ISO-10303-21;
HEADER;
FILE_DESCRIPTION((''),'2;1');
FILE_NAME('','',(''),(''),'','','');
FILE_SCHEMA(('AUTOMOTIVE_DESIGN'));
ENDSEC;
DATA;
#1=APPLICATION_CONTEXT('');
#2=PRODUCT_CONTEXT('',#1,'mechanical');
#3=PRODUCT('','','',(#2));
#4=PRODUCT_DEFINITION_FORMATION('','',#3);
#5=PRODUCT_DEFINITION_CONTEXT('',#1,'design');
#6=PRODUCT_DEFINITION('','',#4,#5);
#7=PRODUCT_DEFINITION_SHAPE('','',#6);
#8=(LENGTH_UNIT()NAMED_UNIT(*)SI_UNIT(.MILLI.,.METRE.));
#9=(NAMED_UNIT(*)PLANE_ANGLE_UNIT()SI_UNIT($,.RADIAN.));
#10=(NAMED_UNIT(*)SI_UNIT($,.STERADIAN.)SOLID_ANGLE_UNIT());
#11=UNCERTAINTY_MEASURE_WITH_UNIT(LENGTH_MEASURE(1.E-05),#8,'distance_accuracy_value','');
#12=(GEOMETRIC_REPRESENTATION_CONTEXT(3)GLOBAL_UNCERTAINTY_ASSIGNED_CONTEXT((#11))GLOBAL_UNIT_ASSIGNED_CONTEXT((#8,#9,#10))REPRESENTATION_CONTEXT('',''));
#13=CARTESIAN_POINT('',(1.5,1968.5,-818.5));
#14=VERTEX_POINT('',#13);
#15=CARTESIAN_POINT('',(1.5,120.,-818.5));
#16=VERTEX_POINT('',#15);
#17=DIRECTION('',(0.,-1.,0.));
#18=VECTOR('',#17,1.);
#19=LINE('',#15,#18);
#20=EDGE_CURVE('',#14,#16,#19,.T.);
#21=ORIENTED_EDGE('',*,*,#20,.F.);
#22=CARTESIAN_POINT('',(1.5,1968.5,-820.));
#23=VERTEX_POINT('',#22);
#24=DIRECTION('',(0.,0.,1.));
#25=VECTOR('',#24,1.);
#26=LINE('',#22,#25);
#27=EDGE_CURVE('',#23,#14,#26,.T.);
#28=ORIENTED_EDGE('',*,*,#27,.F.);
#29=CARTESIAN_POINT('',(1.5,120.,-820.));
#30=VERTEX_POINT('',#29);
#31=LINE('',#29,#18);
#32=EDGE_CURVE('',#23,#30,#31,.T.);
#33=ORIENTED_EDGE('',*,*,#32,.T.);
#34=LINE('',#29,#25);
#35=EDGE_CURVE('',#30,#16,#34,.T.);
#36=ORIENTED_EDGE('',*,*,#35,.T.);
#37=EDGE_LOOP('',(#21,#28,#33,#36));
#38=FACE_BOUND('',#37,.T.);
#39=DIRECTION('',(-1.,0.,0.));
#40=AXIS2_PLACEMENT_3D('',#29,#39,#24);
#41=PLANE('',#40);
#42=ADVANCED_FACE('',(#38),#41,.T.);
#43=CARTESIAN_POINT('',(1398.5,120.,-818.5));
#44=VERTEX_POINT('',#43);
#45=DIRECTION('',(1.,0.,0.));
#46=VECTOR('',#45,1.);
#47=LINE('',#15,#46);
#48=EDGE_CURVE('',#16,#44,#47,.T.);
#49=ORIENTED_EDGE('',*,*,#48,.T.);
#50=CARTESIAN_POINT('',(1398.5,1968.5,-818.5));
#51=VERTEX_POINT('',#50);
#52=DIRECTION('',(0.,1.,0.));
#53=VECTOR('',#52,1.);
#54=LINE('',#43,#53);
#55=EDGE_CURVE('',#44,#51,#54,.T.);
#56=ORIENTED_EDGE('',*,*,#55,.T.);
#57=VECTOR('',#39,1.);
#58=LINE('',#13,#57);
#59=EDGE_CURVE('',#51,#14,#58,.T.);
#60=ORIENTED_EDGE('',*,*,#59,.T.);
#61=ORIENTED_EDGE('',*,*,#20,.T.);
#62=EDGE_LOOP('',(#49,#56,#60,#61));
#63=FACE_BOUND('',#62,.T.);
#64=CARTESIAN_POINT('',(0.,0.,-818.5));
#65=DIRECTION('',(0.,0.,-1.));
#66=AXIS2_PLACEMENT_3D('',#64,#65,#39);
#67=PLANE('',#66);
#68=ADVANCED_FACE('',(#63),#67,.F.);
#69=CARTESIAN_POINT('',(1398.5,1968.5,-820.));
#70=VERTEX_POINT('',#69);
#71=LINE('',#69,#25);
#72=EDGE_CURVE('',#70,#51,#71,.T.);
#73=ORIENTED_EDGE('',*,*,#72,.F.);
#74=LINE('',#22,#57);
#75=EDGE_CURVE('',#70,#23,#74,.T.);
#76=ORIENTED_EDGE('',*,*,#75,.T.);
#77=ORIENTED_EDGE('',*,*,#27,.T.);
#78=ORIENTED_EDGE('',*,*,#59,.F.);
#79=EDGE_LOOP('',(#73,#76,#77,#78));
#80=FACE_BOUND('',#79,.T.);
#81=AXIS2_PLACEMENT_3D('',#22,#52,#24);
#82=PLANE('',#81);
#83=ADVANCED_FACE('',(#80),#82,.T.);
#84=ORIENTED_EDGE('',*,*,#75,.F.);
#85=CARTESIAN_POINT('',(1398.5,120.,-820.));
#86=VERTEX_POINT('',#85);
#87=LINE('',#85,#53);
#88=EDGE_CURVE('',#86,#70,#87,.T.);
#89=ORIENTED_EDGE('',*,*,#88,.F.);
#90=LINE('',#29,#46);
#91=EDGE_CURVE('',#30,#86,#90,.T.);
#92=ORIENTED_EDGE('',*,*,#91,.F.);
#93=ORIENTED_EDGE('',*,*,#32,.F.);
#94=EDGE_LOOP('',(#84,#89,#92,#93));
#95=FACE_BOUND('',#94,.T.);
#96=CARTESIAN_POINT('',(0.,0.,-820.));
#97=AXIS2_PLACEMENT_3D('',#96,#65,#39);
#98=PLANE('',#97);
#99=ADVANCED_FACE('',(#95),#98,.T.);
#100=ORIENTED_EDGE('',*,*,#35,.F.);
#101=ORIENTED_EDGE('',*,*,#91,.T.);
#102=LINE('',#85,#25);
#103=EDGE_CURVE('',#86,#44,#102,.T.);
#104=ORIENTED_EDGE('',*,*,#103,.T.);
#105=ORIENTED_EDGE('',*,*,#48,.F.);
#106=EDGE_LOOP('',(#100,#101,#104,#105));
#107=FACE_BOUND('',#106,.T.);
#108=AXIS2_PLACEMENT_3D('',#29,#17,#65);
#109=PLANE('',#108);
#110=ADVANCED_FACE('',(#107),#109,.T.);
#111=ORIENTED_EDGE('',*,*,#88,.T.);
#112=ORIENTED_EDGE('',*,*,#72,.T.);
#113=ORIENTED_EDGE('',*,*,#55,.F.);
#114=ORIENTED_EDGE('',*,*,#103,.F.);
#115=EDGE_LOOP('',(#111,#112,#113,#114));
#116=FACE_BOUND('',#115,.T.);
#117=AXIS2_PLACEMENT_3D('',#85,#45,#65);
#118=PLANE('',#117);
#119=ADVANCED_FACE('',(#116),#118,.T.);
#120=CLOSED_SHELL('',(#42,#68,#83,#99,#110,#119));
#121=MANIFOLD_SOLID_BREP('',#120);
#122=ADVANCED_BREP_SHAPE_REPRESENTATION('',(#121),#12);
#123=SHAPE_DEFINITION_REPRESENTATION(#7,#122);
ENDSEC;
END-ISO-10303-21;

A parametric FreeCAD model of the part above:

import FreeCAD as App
import Part
import Sketcher
from FreeCAD import Vector


def add_polygon(sketch, points):
    """Adds a closed chain of lines whose ends are joined by coincident constraints."""
    first, n = sketch.GeometryCount, len(points)
    for a, b in zip(points, points[1:] + points[:1]):
        sketch.addGeometry(Part.LineSegment(App.Vector(*a, 0), App.Vector(*b, 0)), False)
    for i in range(n):
        sketch.addConstraint(Sketcher.Constraint("Coincident", first + i, 2, first + (i + 1) % n, 1))

doc = App.newDocument("Part")
body = doc.addObject("PartDesign::Body", "Body")

# Sketch on XY plane
sketch1 = doc.addObject("Sketcher::SketchObject", "Sketch")
body.addObject(sketch1)
sketch1.AttachmentSupport = (doc.XY_Plane, [""])
sketch1.MapMode = "FlatFace"
sketch1.AttachmentOffset = App.Placement(Vector(0, 0, -818.5), App.Rotation())
add_polygon(sketch1, [(2, 1968), (2, 120), (1398, 120), (1398, 1968)])  # lines 0-3
sketch1.addConstraint([
    Sketcher.Constraint("Vertical", 0),
    Sketcher.Constraint("Horizontal", 1),
    Sketcher.Constraint("Vertical", 2),
    Sketcher.Constraint("Horizontal", 3),
    Sketcher.Constraint("DistanceX", 1, 1, 1, 2, 1397.0),
    Sketcher.Constraint("DistanceY", 0, 2, 0, 1, 1848.5),
    Sketcher.Constraint("DistanceY", -1, 1, 0, 2, 120.0),
    Sketcher.Constraint("DistanceX", -1, 1, 0, 2, 1.5),
])
pad1 = doc.addObject("PartDesign::Pad", "Pad")
body.addObject(pad1)
pad1.Profile = sketch1
pad1.Length = 1.5
pad1.Reversed = True

doc.recompute()
